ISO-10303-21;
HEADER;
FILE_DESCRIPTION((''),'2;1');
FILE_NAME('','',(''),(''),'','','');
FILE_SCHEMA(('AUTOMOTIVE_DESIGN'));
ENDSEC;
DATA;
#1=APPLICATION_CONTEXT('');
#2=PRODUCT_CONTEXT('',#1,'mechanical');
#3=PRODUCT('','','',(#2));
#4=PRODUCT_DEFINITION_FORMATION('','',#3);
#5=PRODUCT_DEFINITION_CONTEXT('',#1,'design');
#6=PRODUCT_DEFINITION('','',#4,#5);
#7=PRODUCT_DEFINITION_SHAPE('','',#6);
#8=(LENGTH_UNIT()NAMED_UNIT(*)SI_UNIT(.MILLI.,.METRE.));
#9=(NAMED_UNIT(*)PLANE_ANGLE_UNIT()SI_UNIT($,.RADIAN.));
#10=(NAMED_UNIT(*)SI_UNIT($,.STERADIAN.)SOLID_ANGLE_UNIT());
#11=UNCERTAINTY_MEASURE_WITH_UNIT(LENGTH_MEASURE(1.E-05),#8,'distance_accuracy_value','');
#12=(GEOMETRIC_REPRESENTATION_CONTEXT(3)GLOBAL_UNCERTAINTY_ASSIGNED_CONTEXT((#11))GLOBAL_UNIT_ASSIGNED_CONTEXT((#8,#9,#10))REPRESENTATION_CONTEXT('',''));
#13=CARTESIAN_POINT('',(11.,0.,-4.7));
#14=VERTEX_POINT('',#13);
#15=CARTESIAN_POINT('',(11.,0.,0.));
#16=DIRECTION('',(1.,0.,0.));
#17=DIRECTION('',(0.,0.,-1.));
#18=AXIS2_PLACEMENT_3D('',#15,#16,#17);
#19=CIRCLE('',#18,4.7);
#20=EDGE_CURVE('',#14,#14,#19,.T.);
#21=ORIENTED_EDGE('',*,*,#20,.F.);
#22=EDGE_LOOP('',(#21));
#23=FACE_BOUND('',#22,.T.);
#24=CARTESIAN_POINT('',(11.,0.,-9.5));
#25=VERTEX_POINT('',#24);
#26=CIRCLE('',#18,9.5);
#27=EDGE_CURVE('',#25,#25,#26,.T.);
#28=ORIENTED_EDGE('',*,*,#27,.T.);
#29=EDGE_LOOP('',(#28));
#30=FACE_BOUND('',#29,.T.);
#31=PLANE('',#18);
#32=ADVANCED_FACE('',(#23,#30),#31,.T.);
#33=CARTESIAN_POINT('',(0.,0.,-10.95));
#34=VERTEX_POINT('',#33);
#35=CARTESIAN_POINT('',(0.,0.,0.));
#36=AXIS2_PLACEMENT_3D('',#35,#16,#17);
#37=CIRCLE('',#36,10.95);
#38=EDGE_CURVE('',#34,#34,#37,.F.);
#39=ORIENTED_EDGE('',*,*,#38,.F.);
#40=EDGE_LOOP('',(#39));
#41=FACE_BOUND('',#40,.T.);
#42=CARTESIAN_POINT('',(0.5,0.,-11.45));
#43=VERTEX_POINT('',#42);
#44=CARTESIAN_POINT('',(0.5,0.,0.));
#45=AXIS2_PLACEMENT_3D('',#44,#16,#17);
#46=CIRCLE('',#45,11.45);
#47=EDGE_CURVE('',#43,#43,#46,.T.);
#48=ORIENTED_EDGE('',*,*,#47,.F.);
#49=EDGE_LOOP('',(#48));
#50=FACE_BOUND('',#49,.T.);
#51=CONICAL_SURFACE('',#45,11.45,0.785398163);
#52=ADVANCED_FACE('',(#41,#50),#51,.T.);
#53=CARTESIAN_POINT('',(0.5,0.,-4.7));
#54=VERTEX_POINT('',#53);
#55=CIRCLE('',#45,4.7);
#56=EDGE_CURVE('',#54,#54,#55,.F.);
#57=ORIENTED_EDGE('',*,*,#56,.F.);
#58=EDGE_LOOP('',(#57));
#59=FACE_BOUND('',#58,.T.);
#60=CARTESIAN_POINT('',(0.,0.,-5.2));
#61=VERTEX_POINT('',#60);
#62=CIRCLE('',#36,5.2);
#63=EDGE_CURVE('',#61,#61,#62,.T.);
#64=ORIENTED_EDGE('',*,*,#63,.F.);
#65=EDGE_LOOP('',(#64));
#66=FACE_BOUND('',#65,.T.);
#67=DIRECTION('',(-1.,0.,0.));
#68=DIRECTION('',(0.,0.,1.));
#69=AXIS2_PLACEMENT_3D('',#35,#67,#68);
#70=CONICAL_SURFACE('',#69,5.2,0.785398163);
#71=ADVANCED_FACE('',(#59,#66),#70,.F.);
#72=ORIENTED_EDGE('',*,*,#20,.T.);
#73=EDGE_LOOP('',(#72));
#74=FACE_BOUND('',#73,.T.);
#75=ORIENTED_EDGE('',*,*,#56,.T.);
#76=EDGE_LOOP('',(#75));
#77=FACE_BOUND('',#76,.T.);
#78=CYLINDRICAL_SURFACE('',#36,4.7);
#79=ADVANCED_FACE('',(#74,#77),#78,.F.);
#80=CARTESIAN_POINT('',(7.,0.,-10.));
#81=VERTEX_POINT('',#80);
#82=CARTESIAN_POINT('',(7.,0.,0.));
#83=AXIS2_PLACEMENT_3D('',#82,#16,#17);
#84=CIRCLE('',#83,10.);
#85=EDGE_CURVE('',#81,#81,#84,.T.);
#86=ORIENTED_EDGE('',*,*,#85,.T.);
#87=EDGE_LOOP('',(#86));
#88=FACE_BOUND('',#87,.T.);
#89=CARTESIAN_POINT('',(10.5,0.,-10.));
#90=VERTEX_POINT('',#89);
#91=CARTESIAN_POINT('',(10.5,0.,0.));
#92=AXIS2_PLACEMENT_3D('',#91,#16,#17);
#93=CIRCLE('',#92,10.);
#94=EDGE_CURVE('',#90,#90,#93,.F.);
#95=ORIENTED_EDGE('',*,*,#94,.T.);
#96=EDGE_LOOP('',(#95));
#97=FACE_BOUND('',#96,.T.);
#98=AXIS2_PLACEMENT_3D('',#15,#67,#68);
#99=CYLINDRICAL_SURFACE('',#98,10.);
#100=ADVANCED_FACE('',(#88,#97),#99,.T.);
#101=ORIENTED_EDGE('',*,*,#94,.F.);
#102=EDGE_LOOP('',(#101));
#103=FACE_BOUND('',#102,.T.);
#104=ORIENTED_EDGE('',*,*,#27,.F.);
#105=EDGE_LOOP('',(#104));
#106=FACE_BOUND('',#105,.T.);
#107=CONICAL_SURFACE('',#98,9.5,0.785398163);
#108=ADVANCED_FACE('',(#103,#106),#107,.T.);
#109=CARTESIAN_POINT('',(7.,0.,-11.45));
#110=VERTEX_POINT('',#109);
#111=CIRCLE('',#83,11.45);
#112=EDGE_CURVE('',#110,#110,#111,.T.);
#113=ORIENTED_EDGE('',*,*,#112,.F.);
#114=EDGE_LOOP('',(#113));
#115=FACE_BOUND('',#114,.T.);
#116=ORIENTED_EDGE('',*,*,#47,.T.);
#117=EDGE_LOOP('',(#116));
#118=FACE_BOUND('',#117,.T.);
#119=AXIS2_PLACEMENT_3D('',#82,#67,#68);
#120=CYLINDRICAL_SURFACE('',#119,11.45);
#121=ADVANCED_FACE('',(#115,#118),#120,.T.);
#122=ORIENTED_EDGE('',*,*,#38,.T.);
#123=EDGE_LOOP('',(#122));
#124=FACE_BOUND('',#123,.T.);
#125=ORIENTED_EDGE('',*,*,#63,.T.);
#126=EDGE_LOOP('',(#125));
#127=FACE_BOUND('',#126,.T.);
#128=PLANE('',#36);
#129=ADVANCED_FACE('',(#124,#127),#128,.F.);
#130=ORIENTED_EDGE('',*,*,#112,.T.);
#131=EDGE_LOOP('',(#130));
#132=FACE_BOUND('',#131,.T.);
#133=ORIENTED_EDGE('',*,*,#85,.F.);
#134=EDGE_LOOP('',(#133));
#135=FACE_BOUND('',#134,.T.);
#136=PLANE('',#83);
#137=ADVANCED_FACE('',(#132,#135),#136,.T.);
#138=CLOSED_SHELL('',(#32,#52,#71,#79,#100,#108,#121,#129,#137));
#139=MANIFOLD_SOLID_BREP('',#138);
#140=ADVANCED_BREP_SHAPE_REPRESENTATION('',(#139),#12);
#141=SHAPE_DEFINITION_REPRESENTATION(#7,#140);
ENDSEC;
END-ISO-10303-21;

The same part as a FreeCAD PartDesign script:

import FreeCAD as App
import Part
import Sketcher
from FreeCAD import Vector


def edges_at(feature, points):
    """Names of the edges that pass closest to the given points."""
    edges = feature.Shape.Edges
    near = lambda p: min(range(len(edges)), key=lambda i: edges[i].distToShape(Part.Vertex(*p))[0])
    return sorted({f"Edge{near(p) + 1}" for p in points})

doc = App.newDocument("Part")
body = doc.addObject("PartDesign::Body", "Body")

# Sketch on YZ plane
sketch1 = doc.addObject("Sketcher::SketchObject", "Sketch")
body.addObject(sketch1)
sketch1.AttachmentSupport = (doc.YZ_Plane, [""])
sketch1.MapMode = "FlatFace"
sketch1.addGeometry(Part.Circle(Vector(0, 0, 0), Vector(0, 0, 1), 11), False)
sketch1.addConstraint([
    Sketcher.Constraint("Coincident", 0, 3, -1, 1),
    Sketcher.Constraint("Diameter", 0, 22.9),
])
pad1 = doc.addObject("PartDesign::Pad", "Pad")
body.addObject(pad1)
pad1.Profile = sketch1
pad1.Length = 7

# Sketch on YZ plane
sketch2 = doc.addObject("Sketcher::SketchObject", "Sketch001")
body.addObject(sketch2)
sketch2.AttachmentSupport = (doc.YZ_Plane, [""])
sketch2.MapMode = "FlatFace"
sketch2.AttachmentOffset = App.Placement(Vector(0, 0, 7), App.Rotation())
sketch2.addGeometry(Part.Circle(Vector(0, 0, 0), Vector(0, 0, 1), 10), False)
sketch2.addConstraint([
    Sketcher.Constraint("Coincident", 0, 3, -1, 1),
    Sketcher.Constraint("Diameter", 0, 20.0),
])
pad2 = doc.addObject("PartDesign::Pad", "Pad001")
body.addObject(pad2)
pad2.Profile = sketch2
pad2.Length = 4

# Sketch on YZ plane
sketch3 = doc.addObject("Sketcher::SketchObject", "Sketch002")
body.addObject(sketch3)
sketch3.AttachmentSupport = (doc.YZ_Plane, [""])
sketch3.MapMode = "FlatFace"
sketch3.AttachmentOffset = App.Placement(Vector(0, 0, 11), App.Rotation())
sketch3.addGeometry(Part.Circle(Vector(0, 0, 0), Vector(0, 0, 1), 4.7), False)
sketch3.addConstraint([
    Sketcher.Constraint("Coincident", 0, 3, -1, 1),
    Sketcher.Constraint("Diameter", 0, 9.4),
])
pocket1 = doc.addObject("PartDesign::Pocket", "Pocket")
body.addObject(pocket1)
pocket1.Profile = sketch3
pocket1.Type = "ThroughAll"
doc.recompute()

chamfer = doc.addObject("PartDesign::Chamfer", "Chamfer")
body.addObject(chamfer)
chamfer.Base = (pocket1, edges_at(pocket1, [(0, 0, 4.7), (0, 0, 11.45), (11, 0, 10)]))
chamfer.Size = 0.5

doc.recompute()
